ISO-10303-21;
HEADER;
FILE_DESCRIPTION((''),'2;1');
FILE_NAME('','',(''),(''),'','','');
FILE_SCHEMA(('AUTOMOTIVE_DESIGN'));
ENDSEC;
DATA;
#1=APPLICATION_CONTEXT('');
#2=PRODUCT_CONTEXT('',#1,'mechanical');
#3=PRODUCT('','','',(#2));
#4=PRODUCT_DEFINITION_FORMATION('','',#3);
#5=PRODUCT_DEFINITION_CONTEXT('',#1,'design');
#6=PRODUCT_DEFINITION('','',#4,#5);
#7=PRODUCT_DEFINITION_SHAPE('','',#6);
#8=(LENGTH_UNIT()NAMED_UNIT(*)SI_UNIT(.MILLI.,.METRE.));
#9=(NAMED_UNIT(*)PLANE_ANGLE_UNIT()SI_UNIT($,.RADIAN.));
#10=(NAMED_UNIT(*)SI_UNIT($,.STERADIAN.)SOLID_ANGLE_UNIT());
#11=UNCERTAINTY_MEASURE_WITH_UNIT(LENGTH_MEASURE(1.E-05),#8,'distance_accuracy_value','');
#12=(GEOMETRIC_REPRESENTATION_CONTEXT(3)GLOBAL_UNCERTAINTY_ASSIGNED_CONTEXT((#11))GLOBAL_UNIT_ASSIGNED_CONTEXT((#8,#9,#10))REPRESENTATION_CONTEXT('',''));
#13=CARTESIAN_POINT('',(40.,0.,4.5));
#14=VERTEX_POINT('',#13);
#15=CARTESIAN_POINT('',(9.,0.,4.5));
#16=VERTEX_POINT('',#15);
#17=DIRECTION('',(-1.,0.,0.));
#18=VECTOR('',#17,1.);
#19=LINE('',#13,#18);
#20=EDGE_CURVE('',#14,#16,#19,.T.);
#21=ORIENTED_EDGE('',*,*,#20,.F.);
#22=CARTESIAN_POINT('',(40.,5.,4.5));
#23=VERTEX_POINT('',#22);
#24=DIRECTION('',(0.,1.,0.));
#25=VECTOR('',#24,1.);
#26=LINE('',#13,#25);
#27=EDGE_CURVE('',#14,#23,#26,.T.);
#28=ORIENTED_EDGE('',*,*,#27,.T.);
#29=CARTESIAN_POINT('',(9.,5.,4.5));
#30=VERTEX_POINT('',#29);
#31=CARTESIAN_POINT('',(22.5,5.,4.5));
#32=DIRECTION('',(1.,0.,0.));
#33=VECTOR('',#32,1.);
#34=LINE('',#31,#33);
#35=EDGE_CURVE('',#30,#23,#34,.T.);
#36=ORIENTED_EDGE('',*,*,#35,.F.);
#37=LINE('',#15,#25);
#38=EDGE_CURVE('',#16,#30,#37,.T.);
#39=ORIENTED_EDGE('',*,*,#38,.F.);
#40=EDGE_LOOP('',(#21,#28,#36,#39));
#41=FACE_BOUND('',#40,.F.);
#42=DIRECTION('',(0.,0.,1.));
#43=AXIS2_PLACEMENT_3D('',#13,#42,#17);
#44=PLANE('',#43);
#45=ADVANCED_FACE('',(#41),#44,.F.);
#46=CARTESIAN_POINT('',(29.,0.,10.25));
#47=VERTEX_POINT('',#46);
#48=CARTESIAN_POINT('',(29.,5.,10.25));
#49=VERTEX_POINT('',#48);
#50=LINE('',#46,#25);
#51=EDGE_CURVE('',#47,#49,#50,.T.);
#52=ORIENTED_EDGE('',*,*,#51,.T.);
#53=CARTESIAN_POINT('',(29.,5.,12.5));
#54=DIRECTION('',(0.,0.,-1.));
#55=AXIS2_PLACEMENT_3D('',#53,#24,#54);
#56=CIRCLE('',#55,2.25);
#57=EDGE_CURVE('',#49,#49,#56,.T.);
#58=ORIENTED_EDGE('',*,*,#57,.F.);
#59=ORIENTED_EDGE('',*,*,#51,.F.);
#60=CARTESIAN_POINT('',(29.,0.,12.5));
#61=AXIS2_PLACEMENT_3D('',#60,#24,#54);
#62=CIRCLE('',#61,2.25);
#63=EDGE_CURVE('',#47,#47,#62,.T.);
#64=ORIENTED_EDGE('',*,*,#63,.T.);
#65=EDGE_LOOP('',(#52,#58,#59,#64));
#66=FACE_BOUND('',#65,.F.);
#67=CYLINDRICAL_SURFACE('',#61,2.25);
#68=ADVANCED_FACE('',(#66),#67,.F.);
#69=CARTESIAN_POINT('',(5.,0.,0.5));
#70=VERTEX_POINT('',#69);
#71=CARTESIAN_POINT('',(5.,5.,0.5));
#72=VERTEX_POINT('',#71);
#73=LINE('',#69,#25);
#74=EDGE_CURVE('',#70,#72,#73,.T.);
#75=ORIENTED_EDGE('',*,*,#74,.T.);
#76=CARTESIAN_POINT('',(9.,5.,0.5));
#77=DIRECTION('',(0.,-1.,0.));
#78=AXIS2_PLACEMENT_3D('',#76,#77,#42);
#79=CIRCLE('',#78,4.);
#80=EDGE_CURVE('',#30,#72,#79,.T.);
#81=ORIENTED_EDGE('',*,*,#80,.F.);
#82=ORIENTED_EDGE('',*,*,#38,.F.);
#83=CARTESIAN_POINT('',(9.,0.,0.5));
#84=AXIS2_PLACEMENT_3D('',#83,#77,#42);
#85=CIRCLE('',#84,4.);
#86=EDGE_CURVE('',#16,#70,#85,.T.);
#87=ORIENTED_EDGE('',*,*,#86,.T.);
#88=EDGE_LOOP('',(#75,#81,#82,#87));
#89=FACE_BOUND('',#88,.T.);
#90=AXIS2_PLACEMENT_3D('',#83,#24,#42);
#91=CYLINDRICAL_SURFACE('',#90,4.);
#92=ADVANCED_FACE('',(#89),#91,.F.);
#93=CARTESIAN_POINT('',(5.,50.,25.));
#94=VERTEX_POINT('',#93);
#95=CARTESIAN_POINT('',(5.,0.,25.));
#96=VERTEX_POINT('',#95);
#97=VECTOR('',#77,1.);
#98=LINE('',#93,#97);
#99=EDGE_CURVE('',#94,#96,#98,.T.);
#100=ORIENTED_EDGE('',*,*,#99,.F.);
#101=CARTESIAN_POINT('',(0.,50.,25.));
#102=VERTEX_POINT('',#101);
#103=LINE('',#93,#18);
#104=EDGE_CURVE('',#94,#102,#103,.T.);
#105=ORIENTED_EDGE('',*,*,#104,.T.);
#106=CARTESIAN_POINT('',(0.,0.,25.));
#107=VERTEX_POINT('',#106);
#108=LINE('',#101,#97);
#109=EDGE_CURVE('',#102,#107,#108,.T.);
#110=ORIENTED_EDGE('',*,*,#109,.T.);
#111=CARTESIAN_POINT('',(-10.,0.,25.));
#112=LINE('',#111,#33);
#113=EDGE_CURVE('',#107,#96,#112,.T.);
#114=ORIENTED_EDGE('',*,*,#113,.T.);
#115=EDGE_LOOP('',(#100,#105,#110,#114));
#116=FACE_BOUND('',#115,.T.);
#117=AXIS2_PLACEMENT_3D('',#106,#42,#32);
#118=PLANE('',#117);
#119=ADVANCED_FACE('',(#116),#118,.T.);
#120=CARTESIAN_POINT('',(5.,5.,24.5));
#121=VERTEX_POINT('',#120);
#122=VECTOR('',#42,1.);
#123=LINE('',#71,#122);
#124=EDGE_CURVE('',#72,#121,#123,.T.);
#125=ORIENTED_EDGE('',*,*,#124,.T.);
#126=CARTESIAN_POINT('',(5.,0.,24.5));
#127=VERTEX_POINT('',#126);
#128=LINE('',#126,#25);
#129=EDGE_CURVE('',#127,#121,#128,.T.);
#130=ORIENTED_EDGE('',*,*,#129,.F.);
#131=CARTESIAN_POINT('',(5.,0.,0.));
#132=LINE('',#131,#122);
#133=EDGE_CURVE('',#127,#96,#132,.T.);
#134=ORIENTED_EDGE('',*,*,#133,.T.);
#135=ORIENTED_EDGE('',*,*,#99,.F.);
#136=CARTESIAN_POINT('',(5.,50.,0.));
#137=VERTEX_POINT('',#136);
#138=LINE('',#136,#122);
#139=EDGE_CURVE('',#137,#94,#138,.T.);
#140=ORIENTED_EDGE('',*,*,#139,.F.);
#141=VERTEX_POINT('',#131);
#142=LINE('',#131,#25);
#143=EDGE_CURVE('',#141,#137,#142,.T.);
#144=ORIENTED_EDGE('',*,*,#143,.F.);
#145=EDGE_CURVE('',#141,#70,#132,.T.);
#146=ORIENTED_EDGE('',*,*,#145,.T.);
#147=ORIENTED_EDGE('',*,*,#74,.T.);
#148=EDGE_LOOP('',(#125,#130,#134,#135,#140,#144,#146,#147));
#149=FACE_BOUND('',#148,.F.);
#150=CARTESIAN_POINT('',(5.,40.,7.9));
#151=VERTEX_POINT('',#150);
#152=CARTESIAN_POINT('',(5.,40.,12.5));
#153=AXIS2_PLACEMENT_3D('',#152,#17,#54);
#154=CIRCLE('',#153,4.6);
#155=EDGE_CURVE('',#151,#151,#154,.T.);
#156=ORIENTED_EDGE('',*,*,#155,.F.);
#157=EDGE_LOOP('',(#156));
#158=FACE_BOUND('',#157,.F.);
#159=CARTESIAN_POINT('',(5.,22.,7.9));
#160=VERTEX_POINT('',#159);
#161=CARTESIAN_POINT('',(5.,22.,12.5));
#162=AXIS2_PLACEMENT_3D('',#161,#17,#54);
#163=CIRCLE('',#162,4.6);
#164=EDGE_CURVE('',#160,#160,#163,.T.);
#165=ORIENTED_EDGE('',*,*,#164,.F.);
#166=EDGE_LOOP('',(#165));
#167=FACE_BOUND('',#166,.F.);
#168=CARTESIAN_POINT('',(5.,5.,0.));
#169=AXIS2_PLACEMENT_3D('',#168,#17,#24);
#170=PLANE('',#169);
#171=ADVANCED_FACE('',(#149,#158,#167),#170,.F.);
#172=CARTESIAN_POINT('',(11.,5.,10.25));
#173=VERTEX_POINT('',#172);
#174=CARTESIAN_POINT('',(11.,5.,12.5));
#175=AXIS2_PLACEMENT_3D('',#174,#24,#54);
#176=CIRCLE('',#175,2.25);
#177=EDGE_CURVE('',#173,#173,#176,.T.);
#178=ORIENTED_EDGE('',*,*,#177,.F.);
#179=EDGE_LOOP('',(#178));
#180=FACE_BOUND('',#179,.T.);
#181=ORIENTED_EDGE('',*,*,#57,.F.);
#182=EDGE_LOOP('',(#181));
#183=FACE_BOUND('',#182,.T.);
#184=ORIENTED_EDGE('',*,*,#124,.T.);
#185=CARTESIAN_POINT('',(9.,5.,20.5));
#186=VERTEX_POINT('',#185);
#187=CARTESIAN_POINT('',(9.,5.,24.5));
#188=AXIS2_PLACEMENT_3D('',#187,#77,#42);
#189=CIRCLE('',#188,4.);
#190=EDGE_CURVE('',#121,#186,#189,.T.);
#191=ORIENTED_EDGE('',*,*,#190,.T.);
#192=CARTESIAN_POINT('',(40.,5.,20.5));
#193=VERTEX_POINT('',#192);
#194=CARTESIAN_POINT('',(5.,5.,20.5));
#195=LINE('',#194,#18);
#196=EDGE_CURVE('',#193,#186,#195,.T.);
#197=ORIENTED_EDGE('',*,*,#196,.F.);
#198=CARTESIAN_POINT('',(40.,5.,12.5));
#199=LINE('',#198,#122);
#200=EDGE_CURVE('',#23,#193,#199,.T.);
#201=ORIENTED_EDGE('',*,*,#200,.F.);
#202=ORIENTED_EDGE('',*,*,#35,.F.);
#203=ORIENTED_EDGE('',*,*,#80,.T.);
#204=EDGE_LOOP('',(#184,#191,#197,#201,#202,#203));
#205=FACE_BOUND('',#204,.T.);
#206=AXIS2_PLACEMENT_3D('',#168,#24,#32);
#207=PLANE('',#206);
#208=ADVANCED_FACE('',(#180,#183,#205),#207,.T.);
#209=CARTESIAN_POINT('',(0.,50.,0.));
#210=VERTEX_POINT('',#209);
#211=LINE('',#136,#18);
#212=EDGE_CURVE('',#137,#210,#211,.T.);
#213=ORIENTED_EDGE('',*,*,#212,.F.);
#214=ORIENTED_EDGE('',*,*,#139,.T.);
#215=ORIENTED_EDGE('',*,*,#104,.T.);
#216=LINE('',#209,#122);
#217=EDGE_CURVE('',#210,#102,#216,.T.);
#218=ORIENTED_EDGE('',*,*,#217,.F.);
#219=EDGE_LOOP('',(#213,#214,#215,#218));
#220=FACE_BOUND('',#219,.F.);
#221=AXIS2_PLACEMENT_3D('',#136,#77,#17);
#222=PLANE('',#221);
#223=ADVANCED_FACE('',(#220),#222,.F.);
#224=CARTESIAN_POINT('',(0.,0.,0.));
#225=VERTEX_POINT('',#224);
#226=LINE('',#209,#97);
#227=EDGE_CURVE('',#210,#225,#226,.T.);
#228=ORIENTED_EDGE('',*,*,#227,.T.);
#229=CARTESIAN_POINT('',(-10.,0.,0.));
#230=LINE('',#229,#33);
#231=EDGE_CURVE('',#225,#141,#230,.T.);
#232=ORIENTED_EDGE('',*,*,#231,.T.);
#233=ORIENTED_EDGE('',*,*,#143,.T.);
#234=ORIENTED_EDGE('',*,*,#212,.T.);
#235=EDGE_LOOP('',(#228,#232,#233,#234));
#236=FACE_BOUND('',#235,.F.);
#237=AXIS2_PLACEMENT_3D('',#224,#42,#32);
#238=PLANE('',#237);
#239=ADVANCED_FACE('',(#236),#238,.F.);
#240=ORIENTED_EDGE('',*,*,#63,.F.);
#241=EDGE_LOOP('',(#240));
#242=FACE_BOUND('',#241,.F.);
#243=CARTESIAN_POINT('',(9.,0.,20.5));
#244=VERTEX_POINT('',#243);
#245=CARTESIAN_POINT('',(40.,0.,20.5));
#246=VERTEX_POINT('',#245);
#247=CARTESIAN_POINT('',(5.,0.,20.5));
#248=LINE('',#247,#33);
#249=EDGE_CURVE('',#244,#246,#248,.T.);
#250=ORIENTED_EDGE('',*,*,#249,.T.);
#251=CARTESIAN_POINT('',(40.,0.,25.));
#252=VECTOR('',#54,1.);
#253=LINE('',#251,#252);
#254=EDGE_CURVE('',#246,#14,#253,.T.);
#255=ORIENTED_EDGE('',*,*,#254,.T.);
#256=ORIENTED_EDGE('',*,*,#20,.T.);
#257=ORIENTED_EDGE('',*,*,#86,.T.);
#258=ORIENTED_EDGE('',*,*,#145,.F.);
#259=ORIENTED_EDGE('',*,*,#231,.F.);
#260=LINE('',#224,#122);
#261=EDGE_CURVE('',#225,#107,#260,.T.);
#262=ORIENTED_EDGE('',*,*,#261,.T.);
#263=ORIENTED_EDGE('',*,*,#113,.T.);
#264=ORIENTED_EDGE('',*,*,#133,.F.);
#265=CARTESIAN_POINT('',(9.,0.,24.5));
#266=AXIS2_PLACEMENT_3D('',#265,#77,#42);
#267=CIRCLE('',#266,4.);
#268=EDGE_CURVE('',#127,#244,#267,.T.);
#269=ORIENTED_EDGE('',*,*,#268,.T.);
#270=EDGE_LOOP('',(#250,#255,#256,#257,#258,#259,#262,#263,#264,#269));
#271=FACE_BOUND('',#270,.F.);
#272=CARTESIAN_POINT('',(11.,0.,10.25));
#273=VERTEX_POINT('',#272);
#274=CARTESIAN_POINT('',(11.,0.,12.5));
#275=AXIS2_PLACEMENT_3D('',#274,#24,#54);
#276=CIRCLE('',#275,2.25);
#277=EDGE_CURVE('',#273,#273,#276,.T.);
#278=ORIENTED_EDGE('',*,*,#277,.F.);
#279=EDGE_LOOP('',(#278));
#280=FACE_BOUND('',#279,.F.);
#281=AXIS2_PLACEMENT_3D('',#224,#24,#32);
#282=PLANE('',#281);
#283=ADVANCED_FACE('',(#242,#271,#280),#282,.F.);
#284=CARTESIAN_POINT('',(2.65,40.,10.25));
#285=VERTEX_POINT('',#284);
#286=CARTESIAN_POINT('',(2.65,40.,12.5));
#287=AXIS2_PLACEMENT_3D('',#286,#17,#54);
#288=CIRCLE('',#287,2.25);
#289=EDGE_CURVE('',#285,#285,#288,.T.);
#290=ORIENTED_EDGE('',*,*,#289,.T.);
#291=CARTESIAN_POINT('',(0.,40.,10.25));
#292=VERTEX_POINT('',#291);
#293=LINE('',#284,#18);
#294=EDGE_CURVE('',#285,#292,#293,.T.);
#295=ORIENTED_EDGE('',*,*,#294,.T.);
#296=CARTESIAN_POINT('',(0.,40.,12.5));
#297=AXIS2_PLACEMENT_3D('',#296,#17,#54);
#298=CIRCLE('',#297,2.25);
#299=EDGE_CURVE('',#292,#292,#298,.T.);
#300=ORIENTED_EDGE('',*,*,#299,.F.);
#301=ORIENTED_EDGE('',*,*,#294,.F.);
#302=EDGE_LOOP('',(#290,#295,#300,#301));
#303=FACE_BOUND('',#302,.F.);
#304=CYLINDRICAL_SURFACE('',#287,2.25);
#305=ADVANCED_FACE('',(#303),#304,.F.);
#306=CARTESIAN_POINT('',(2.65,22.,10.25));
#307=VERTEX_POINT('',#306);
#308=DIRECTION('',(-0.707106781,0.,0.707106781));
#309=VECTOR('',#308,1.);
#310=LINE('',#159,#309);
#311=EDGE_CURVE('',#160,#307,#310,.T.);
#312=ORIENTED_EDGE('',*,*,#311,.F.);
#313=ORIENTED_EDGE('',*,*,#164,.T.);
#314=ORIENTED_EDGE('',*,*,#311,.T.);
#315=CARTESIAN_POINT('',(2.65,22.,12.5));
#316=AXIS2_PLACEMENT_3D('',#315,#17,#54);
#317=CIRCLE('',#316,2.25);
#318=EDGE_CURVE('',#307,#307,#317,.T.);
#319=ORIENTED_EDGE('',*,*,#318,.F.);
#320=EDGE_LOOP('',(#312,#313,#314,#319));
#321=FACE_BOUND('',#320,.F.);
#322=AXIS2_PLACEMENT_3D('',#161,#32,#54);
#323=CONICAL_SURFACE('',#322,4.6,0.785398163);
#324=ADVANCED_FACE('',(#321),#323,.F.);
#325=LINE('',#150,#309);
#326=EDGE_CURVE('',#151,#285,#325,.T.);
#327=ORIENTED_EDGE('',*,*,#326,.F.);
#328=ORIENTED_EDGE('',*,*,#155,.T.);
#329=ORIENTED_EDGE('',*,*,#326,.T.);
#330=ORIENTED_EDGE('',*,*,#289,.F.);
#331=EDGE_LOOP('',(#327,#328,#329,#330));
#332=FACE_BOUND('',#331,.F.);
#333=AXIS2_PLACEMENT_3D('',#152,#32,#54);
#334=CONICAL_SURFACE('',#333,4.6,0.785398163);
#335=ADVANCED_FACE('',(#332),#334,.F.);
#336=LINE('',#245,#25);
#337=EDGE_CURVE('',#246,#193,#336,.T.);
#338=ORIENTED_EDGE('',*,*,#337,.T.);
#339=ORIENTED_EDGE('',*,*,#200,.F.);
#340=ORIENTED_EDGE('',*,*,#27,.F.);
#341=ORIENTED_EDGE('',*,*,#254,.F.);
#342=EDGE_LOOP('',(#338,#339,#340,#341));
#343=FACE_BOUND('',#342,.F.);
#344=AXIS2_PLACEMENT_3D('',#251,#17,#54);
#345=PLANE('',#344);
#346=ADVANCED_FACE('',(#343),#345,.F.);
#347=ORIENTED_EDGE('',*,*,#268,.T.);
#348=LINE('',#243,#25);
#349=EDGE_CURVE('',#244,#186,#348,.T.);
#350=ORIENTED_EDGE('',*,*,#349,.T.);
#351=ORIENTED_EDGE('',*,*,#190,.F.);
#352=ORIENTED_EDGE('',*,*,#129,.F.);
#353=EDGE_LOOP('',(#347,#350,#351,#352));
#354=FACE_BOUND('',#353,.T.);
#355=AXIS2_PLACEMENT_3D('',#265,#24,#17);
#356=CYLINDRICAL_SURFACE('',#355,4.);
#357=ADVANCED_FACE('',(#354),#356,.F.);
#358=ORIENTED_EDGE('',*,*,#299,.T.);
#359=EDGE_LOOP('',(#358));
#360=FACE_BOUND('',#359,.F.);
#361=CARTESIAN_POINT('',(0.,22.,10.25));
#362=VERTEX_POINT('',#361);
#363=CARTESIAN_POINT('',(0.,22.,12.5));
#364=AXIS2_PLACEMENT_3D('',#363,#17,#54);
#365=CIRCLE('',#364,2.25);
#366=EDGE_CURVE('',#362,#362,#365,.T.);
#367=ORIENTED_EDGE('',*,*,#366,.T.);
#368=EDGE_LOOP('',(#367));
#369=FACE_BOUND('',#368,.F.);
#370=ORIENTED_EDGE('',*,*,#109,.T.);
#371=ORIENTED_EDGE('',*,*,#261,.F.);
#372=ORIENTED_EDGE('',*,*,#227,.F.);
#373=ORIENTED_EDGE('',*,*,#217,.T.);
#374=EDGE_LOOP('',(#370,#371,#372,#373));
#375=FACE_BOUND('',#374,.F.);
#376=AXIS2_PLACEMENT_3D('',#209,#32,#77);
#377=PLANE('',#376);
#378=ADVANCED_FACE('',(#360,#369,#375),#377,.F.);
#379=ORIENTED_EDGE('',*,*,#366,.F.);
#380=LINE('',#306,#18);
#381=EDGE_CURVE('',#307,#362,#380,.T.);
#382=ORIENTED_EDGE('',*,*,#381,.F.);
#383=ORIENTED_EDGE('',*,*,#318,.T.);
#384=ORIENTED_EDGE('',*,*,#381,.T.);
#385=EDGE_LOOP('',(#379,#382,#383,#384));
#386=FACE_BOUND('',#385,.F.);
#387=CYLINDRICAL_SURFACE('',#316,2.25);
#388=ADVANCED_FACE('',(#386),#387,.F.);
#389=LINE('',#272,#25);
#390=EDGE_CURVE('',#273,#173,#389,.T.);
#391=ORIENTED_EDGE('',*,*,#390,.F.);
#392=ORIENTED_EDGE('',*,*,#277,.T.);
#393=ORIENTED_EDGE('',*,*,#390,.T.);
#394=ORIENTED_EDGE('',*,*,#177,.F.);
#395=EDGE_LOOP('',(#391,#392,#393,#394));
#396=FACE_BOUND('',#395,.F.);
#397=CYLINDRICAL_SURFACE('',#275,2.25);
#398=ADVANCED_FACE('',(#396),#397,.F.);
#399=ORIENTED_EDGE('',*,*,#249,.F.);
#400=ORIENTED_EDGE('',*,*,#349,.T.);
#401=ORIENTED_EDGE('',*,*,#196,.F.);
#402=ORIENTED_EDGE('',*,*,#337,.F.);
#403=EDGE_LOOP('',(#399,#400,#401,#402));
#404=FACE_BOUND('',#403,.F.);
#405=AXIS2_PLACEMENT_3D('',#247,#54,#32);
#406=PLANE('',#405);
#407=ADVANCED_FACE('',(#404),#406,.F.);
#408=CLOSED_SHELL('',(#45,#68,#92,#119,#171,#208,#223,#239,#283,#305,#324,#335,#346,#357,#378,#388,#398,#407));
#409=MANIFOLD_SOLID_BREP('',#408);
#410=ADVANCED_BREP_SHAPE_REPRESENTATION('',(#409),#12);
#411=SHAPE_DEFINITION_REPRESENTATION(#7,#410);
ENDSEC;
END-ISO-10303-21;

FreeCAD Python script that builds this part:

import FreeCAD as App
import Part
import Sketcher

V = App.Vector


def edges_at(feature, points):
    """Names of the edges that pass closest to the given points."""
    edges = feature.Shape.Edges
    near = lambda p: min(range(len(edges)), key=lambda i: edges[i].distToShape(Part.Vertex(*p))[0])
    return sorted({f"Edge{near(p) + 1}" for p in points})

doc = App.newDocument("Part")
body = doc.addObject("PartDesign::Body", "Body")

# Sketch on XY plane
sketch1 = body.newObject("Sketcher::SketchObject", "Sketch")
sketch1.AttachmentSupport = (doc.getObject("XY_Plane"), [""])
sketch1.MapMode = "FlatFace"
sketch1.addGeometry([
    Part.LineSegment(V(50, 5, 0), V(5, 5, 0)),  # 0
    Part.LineSegment(V(5, 5, 0), V(5, 50, 0)),  # 1
    Part.LineSegment(V(5, 50, 0), V(0, 50, 0)),  # 2
    Part.LineSegment(V(0, 50, 0), V(0, 0, 0)),  # 3
    Part.LineSegment(V(0, 0, 0), V(50, 0, 0)),  # 4
    Part.LineSegment(V(50, 0, 0), V(50, 5, 0)),  # 5
], False)
sketch1.addConstraint([
    Sketcher.Constraint("Coincident", 0, 2, 1, 1),
    Sketcher.Constraint("Coincident", 1, 2, 2, 1),
    Sketcher.Constraint("Coincident", 2, 2, 3, 1),
    Sketcher.Constraint("Coincident", 3, 2, 4, 1),
    Sketcher.Constraint("Coincident", 4, 2, 5, 1),
    Sketcher.Constraint("Coincident", 5, 2, 0, 1),
    Sketcher.Constraint("Horizontal", 0),
    Sketcher.Constraint("Vertical", 1),
    Sketcher.Constraint("Horizontal", 2),
    Sketcher.Constraint("Vertical", 3),
    Sketcher.Constraint("Horizontal", 4),
    Sketcher.Constraint("Vertical", 5),
    Sketcher.Constraint("Coincident", 3, 2, -1, 1),
    Sketcher.Constraint("Equal", 0, 1),
    Sketcher.Constraint("Equal", 4, 3),
    Sketcher.Constraint("DistanceX", 2, 2, 2, 1, 5.0),
    Sketcher.Constraint("DistanceX", 4, 1, 4, 2, 50.0),
])
pad1 = body.newObject("PartDesign::Pad", "Pad")
pad1.Profile = sketch1
pad1.Length = 25

# Sketch on XZ plane
sketch2 = body.newObject("Sketcher::SketchObject", "Sketch001")
sketch2.AttachmentSupport = (doc.getObject("XZ_Plane"), [""])
sketch2.MapMode = "FlatFace"
sketch2.addGeometry([
    Part.LineSegment(V(40, 0, 0), V(50, 0, 0)),
    Part.LineSegment(V(50, 0, 0), V(50, 25, 0)),
    Part.LineSegment(V(50, 25, 0), V(40, 25, 0)),
    Part.LineSegment(V(40, 25, 0), V(40, 0, 0)),
], False)
sketch2.addConstraint([
    Sketcher.Constraint("Coincident", 0, 2, 1, 1),
    Sketcher.Constraint("Coincident", 1, 2, 2, 1),
    Sketcher.Constraint("Coincident", 2, 2, 3, 1),
    Sketcher.Constraint("Coincident", 3, 2, 0, 1),
    Sketcher.Constraint("Horizontal", 0),
    Sketcher.Constraint("Vertical", 1),
    Sketcher.Constraint("Horizontal", 2),
    Sketcher.Constraint("Vertical", 3),
    Sketcher.Constraint("PointOnObject", 0, 2, -1),
    Sketcher.Constraint("DistanceX", -1, 1, 2, 2, 40.0),
    Sketcher.Constraint("DistanceX", 0, 1, 0, 2, 10.0),
    Sketcher.Constraint("DistanceY", 1, 1, 1, 2, 25.0),
])
pocket1 = body.newObject("PartDesign::Pocket", "Pocket")
pocket1.Profile = sketch2
pocket1.Type = "ThroughAll"

# Sketch on XZ plane
sketch3 = body.newObject("Sketcher::SketchObject", "Sketch002")
sketch3.AttachmentSupport = (doc.getObject("XZ_Plane"), [""])
sketch3.MapMode = "FlatFace"
sketch3.addGeometry([
    Part.LineSegment(V(5, 0, 0), V(40, 0, 0)),  # 0
    Part.LineSegment(V(40, 0, 0), V(40, 4.5, 0)),  # 1
    Part.LineSegment(V(40, 4.5, 0), V(5, 4.5, 0)),  # 2
    Part.LineSegment(V(5, 4.5, 0), V(5, 0, 0)),  # 3
    Part.LineSegment(V(5, 20.5, 0), V(40, 20.5, 0)),  # 4
    Part.LineSegment(V(40, 20.5, 0), V(40, 25, 0)),  # 5
    Part.LineSegment(V(40, 25, 0), V(5, 25, 0)),  # 6
    Part.LineSegment(V(5, 25, 0), V(5, 20.5, 0)),  # 7
], False)
sketch3.addConstraint([
    Sketcher.Constraint("Coincident", 0, 2, 1, 1),
    Sketcher.Constraint("Coincident", 1, 2, 2, 1),
    Sketcher.Constraint("Coincident", 2, 2, 3, 1),
    Sketcher.Constraint("Coincident", 3, 2, 0, 1),
    Sketcher.Constraint("Coincident", 4, 2, 5, 1),
    Sketcher.Constraint("Coincident", 5, 2, 6, 1),
    Sketcher.Constraint("Coincident", 6, 2, 7, 1),
    Sketcher.Constraint("Coincident", 7, 2, 4, 1),
    Sketcher.Constraint("Horizontal", 0),
    Sketcher.Constraint("Vertical", 1),
    Sketcher.Constraint("Horizontal", 2),
    Sketcher.Constraint("Vertical", 3),
    Sketcher.Constraint("Horizontal", 4),
    Sketcher.Constraint("Vertical", 5),
    Sketcher.Constraint("Horizontal", 6),
    Sketcher.Constraint("Vertical", 7),
    Sketcher.Constraint("PointOnObject", 0, 2, -1),
    Sketcher.Constraint("Vertical", 1, 2, 4, 2),
    Sketcher.Constraint("Vertical", 3, 2, 6, 2),
    Sketcher.Constraint("Equal", 3, 5),
    Sketcher.Constraint("DistanceY", 1, 2, 4, 2, 16.0),
    Sketcher.Constraint("DistanceX", 0, 1, 0, 2, 35.0),
    Sketcher.Constraint("DistanceY", 1, 1, 1, 2, 4.5),
    Sketcher.Constraint("DistanceX", -1, 1, 0, 2, 40.0),
])
pocket2 = body.newObject("PartDesign::Pocket", "Pocket001")
pocket2.Profile = sketch3
pocket2.Type = "ThroughAll"

# Sketch on XZ plane
sketch4 = body.newObject("Sketcher::SketchObject", "Sketch003")
sketch4.AttachmentSupport = (doc.getObject("XZ_Plane"), [""])
sketch4.MapMode = "FlatFace"
sketch4.addGeometry([
    Part.Circle(V(11, 12.5, 0), V(0, 0, 1), 2.2),
    Part.Circle(V(29, 12.5, 0), V(0, 0, 1), 2.2),
], False)
sketch4.addConstraint([
    Sketcher.Constraint("Equal", 0, 1),
    Sketcher.Constraint("Horizontal", 0, 3, 1, 3),
    Sketcher.Constraint("Diameter", 0, 4.5),
    Sketcher.Constraint("DistanceX", -1, 1, 0, 3, 11.0),
    Sketcher.Constraint("DistanceX", -1, 1, 1, 3, 29.0),
    Sketcher.Constraint("DistanceY", -1, 1, 0, 3, 12.5),
])
doc.recompute()
hole = body.newObject("PartDesign::Hole", "Hole")
hole.Profile = sketch4
hole.ThreadType = "None"
hole.Diameter = 4.5
hole.DepthType = "ThroughAll"
doc.recompute()

fillet = body.newObject("PartDesign::Fillet", "Fillet")
fillet.Base = (hole, edges_at(hole, [(5, 2.5, 20.5), (5, 2.5, 4.5)]))
fillet.Radius = 4

# Sketch on YZ plane
sketch5 = body.newObject("Sketcher::SketchObject", "Sketch004")
sketch5.AttachmentSupport = (doc.getObject("YZ_Plane"), [""])
sketch5.MapMode = "FlatFace"
sketch5.AttachmentOffset = App.Placement(V(0, 0, 5), App.Rotation())
sketch5.addGeometry([
    Part.Circle(V(40, 12.5, 0), V(0, 0, 1), 2.2),
    Part.Circle(V(22, 12.5, 0), V(0, 0, 1), 2.2),
], False)
sketch5.addConstraint([
    Sketcher.Constraint("Equal", 0, 1),
    Sketcher.Constraint("Horizontal", 0, 3, 1, 3),
    Sketcher.Constraint("Diameter", 0, 4.5),
    Sketcher.Constraint("DistanceX", -1, 1, 0, 3, 40.0),
    Sketcher.Constraint("DistanceX", -1, 1, 1, 3, 22.0),
    Sketcher.Constraint("DistanceY", -1, 1, 0, 3, 12.5),
])
doc.recompute()
hole2 = body.newObject("PartDesign::Hole", "Hole001")
hole2.Profile = sketch5
hole2.ThreadType = "None"
hole2.Diameter = 4.5
hole2.DepthType = "ThroughAll"
hole2.HoleCutType = "Countersink"
hole2.HoleCutDiameter = 9.2
hole2.HoleCutCountersinkAngle = 90

doc.recompute()
